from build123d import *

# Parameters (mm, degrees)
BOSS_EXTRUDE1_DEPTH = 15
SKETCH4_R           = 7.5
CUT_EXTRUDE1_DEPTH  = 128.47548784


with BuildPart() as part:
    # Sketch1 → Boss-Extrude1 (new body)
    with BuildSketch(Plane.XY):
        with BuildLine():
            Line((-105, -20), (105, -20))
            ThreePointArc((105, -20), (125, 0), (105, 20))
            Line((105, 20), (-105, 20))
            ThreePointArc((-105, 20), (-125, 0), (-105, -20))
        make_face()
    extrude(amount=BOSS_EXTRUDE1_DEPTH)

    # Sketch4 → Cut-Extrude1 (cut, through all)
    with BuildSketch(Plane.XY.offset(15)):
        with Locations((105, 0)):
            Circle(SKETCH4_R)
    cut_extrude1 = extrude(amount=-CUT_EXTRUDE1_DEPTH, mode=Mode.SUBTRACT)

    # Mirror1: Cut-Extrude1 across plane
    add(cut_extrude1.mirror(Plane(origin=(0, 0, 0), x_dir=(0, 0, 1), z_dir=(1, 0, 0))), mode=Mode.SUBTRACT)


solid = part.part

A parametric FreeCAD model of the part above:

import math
import FreeCAD as App
import Part
import Sketcher
from FreeCAD import Vector

doc = App.newDocument("Part")
params = doc.addObject("Spreadsheet::Sheet", "Params")
for row, (alias, value) in enumerate([
    ("sketch1_radius", "20 mm"),
    ("sketch1_width", "210 mm"),
    ("pad1_length", "15 mm"),
    ("sketch2_diameter", "15 mm"),
], start=1):
    params.set(f"A{row}", alias)
    params.set(f"B{row}", "=" + value)
    params.setAlias(f"B{row}", alias)

body = doc.addObject("PartDesign::Body", "Body")

# Sketch on XY plane
sketch1 = body.newObject("Sketcher::SketchObject", "Sketch")
sketch1.AttachmentSupport = (doc.getObject("XY_Plane"), [""])
sketch1.MapMode = "FlatFace"
sketch1.addGeometry([
    Part.LineSegment(Vector(-105, -20, 0), Vector(105, -20, 0)),
    Part.ArcOfCircle(Part.Circle(Vector(105, 0, 0), Vector(0, 0, 1), 20), math.radians(-90), math.radians(90)),
    Part.LineSegment(Vector(105, 20, 0), Vector(-105, 20, 0)),
    Part.ArcOfCircle(Part.Circle(Vector(-105, 0, 0), Vector(0, 0, 1), 20), math.radians(90), math.radians(270)),
], False)
sketch1.addConstraint([
    Sketcher.Constraint("Tangent", 0, 2, 1, 1),
    Sketcher.Constraint("Tangent", 1, 2, 2, 1),
    Sketcher.Constraint("Tangent", 2, 2, 3, 1),
    Sketcher.Constraint("Tangent", 3, 2, 0, 1),
    Sketcher.Constraint("Horizontal", 0),
    Sketcher.Constraint("Horizontal", 2),
    Sketcher.Constraint("Symmetric", 1, 3, 3, 3, -1, 1),
    Sketcher.Constraint("Radius", 1, 20.0),
    Sketcher.Constraint("DistanceX", 0, 1, 0, 2, 210.0),
])
sketch1.setExpression("Constraints[7]", "Params.sketch1_radius")
sketch1.setExpression("Constraints[8]", "Params.sketch1_width")
pad1 = body.newObject("PartDesign::Pad", "Pad")
pad1.Profile = sketch1
pad1.setExpression("Length", "Params.pad1_length")

# Sketch on XY plane
sketch2 = body.newObject("Sketcher::SketchObject", "Sketch001")
sketch2.AttachmentSupport = (doc.getObject("XY_Plane"), [""])
sketch2.MapMode = "FlatFace"
sketch2.AttachmentOffset = App.Placement(Vector(0, 0, 15), App.Rotation())
sketch2.addGeometry(Part.Circle(Vector(105, 0, 0), Vector(0, 0, 1), 7.5), False)
sketch2.addConstraint([
    Sketcher.Constraint("PointOnObject", 0, 3, -1),
    Sketcher.Constraint("Diameter", 0, 15.0),
    Sketcher.Constraint("DistanceX", -1, 1, 0, 3, 105.0),
])
sketch2.setExpression("Constraints[1]", "Params.sketch2_diameter")
pocket1 = body.newObject("PartDesign::Pocket", "Pocket")
pocket1.Profile = sketch2
pocket1.Type = "ThroughAll"
doc.recompute()

mirrored = body.newObject("PartDesign::Mirrored", "Mirrored")
mirrored.Originals = [pocket1]
mirrored.MirrorPlane = (doc.getObject("YZ_Plane"), [""])
body.Tip = mirrored

doc.recompute()
